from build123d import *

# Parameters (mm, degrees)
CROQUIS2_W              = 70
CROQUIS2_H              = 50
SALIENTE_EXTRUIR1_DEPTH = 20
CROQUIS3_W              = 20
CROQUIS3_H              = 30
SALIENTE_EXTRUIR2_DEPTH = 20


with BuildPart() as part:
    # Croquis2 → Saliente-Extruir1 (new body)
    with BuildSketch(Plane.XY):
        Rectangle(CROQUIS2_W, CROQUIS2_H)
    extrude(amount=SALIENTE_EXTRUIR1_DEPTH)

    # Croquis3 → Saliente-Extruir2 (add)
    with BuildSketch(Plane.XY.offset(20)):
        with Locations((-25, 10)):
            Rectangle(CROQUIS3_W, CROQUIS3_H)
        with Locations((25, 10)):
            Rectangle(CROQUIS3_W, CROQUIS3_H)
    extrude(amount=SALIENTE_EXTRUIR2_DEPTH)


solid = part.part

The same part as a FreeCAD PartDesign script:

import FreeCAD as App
import Part
import Sketcher

V = App.Vector
Q = App.Units.Quantity

doc = App.newDocument("Part")
params = doc.addObject("Spreadsheet::Sheet", "Params")
for row, (alias, value) in enumerate([
    ("sketch1_width", "70 mm"),
    ("sketch1_height", "50 mm"),
    ("pad1_length", "20 mm"),
    ("sketch2_width", "20 mm"),
    ("sketch2_height", "30 mm"),
    ("pad2_length", "20 mm"),
], start=1):
    params.set(f"A{row}", alias)
    params.set(f"B{row}", "=" + value)
    params.setAlias(f"B{row}", alias)

body = doc.addObject("PartDesign::Body", "Body")

# Sketch on XY plane
sketch1 = body.newObject("Sketcher::SketchObject", "Sketch")
sketch1.AttachmentSupport = (doc.getObject("XY_Plane"), [""])
sketch1.MapMode = "FlatFace"
sketch1.addGeometry(Part.LineSegment(V(-35, 25, 0), V(-35, -25, 0)), False)
sketch1.addGeometry(Part.LineSegment(V(-35, -25, 0), V(35, -25, 0)), False)
sketch1.addGeometry(Part.LineSegment(V(35, -25, 0), V(35, 25, 0)), False)
sketch1.addGeometry(Part.LineSegment(V(35, 25, 0), V(-35, 25, 0)), False)
sketch1.addConstraint(Sketcher.Constraint("Coincident", 0, 2, 1, 1))
sketch1.addConstraint(Sketcher.Constraint("Coincident", 1, 2, 2, 1))
sketch1.addConstraint(Sketcher.Constraint("Coincident", 2, 2, 3, 1))
sketch1.addConstraint(Sketcher.Constraint("Coincident", 3, 2, 0, 1))
sketch1.addConstraint(Sketcher.Constraint("Vertical", 0))
sketch1.addConstraint(Sketcher.Constraint("Horizontal", 1))
sketch1.addConstraint(Sketcher.Constraint("Vertical", 2))
sketch1.addConstraint(Sketcher.Constraint("Horizontal", 3))
sketch1.addConstraint(Sketcher.Constraint("Symmetric", 0, 2, 2, 2, -1, 1))
sketch1.addConstraint(Sketcher.Constraint("DistanceX", 1, 1, 1, 2, Q("70 mm")))
sketch1.addConstraint(Sketcher.Constraint("DistanceY", 0, 2, 0, 1, Q("50 mm")))
sketch1.setExpression("Constraints[9]", "Params.sketch1_width")
sketch1.setExpression("Constraints[10]", "Params.sketch1_height")
pad1 = body.newObject("PartDesign::Pad", "Pad")
pad1.Profile = sketch1
pad1.setExpression("Length", "Params.pad1_length")

# Sketch on XY plane
sketch2 = body.newObject("Sketcher::SketchObject", "Sketch001")
sketch2.AttachmentSupport = (doc.getObject("XY_Plane"), [""])
sketch2.MapMode = "FlatFace"
sketch2.AttachmentOffset = App.Placement(V(0, 0, 20), App.Rotation())
sketch2.addGeometry(Part.LineSegment(V(-35, 25, 0), V(-35, -5, 0)), False)
sketch2.addGeometry(Part.LineSegment(V(-35, -5, 0), V(-15, -5, 0)), False)
sketch2.addGeometry(Part.LineSegment(V(-15, -5, 0), V(-15, 25, 0)), False)
sketch2.addGeometry(Part.LineSegment(V(-15, 25, 0), V(-35, 25, 0)), False)
sketch2.addGeometry(Part.LineSegment(V(15, 25, 0), V(15, -5, 0)), False)
sketch2.addGeometry(Part.LineSegment(V(15, -5, 0), V(35, -5, 0)), False)
sketch2.addGeometry(Part.LineSegment(V(35, -5, 0), V(35, 25, 0)), False)
sketch2.addGeometry(Part.LineSegment(V(35, 25, 0), V(15, 25, 0)), False)
sketch2.addConstraint(Sketcher.Constraint("Coincident", 0, 2, 1, 1))
sketch2.addConstraint(Sketcher.Constraint("Coincident", 1, 2, 2, 1))
sketch2.addConstraint(Sketcher.Constraint("Coincident", 2, 2, 3, 1))
sketch2.addConstraint(Sketcher.Constraint("Coincident", 3, 2, 0, 1))
sketch2.addConstraint(Sketcher.Constraint("Coincident", 4, 2, 5, 1))
sketch2.addConstraint(Sketcher.Constraint("Coincident", 5, 2, 6, 1))
sketch2.addConstraint(Sketcher.Constraint("Coincident", 6, 2, 7, 1))
sketch2.addConstraint(Sketcher.Constraint("Coincident", 7, 2, 4, 1))
sketch2.addConstraint(Sketcher.Constraint("Vertical", 0))
sketch2.addConstraint(Sketcher.Constraint("Horizontal", 1))
sketch2.addConstraint(Sketcher.Constraint("Vertical", 2))
sketch2.addConstraint(Sketcher.Constraint("Horizontal", 3))
sketch2.addConstraint(Sketcher.Constraint("Vertical", 4))
sketch2.addConstraint(Sketcher.Constraint("Horizontal", 5))
sketch2.addConstraint(Sketcher.Constraint("Vertical", 6))
sketch2.addConstraint(Sketcher.Constraint("Horizontal", 7))
sketch2.addConstraint(Sketcher.Constraint("Symmetric", 1, 2, 4, 2, -2))
sketch2.addConstraint(Sketcher.Constraint("Symmetric", 3, 2, 6, 2, -2))
sketch2.addConstraint(Sketcher.Constraint("DistanceX", 1, 1, 1, 2, Q("20 mm")))
sketch2.addConstraint(Sketcher.Constraint("DistanceY", 0, 2, 0, 1, Q("30 mm")))
sketch2.addConstraint(Sketcher.Constraint("DistanceX", 0, 2, -1, 1, Q("35 mm")))
sketch2.addConstraint(Sketcher.Constraint("DistanceY", 0, 2, -1, 1, Q("5 mm")))
sketch2.setExpression("Constraints[18]", "Params.sketch2_width")
sketch2.setExpression("Constraints[19]", "Params.sketch2_height")
pad2 = body.newObject("PartDesign::Pad", "Pad001")
pad2.Profile = sketch2
pad2.setExpression("Length", "Params.pad2_length")

doc.recompute()
